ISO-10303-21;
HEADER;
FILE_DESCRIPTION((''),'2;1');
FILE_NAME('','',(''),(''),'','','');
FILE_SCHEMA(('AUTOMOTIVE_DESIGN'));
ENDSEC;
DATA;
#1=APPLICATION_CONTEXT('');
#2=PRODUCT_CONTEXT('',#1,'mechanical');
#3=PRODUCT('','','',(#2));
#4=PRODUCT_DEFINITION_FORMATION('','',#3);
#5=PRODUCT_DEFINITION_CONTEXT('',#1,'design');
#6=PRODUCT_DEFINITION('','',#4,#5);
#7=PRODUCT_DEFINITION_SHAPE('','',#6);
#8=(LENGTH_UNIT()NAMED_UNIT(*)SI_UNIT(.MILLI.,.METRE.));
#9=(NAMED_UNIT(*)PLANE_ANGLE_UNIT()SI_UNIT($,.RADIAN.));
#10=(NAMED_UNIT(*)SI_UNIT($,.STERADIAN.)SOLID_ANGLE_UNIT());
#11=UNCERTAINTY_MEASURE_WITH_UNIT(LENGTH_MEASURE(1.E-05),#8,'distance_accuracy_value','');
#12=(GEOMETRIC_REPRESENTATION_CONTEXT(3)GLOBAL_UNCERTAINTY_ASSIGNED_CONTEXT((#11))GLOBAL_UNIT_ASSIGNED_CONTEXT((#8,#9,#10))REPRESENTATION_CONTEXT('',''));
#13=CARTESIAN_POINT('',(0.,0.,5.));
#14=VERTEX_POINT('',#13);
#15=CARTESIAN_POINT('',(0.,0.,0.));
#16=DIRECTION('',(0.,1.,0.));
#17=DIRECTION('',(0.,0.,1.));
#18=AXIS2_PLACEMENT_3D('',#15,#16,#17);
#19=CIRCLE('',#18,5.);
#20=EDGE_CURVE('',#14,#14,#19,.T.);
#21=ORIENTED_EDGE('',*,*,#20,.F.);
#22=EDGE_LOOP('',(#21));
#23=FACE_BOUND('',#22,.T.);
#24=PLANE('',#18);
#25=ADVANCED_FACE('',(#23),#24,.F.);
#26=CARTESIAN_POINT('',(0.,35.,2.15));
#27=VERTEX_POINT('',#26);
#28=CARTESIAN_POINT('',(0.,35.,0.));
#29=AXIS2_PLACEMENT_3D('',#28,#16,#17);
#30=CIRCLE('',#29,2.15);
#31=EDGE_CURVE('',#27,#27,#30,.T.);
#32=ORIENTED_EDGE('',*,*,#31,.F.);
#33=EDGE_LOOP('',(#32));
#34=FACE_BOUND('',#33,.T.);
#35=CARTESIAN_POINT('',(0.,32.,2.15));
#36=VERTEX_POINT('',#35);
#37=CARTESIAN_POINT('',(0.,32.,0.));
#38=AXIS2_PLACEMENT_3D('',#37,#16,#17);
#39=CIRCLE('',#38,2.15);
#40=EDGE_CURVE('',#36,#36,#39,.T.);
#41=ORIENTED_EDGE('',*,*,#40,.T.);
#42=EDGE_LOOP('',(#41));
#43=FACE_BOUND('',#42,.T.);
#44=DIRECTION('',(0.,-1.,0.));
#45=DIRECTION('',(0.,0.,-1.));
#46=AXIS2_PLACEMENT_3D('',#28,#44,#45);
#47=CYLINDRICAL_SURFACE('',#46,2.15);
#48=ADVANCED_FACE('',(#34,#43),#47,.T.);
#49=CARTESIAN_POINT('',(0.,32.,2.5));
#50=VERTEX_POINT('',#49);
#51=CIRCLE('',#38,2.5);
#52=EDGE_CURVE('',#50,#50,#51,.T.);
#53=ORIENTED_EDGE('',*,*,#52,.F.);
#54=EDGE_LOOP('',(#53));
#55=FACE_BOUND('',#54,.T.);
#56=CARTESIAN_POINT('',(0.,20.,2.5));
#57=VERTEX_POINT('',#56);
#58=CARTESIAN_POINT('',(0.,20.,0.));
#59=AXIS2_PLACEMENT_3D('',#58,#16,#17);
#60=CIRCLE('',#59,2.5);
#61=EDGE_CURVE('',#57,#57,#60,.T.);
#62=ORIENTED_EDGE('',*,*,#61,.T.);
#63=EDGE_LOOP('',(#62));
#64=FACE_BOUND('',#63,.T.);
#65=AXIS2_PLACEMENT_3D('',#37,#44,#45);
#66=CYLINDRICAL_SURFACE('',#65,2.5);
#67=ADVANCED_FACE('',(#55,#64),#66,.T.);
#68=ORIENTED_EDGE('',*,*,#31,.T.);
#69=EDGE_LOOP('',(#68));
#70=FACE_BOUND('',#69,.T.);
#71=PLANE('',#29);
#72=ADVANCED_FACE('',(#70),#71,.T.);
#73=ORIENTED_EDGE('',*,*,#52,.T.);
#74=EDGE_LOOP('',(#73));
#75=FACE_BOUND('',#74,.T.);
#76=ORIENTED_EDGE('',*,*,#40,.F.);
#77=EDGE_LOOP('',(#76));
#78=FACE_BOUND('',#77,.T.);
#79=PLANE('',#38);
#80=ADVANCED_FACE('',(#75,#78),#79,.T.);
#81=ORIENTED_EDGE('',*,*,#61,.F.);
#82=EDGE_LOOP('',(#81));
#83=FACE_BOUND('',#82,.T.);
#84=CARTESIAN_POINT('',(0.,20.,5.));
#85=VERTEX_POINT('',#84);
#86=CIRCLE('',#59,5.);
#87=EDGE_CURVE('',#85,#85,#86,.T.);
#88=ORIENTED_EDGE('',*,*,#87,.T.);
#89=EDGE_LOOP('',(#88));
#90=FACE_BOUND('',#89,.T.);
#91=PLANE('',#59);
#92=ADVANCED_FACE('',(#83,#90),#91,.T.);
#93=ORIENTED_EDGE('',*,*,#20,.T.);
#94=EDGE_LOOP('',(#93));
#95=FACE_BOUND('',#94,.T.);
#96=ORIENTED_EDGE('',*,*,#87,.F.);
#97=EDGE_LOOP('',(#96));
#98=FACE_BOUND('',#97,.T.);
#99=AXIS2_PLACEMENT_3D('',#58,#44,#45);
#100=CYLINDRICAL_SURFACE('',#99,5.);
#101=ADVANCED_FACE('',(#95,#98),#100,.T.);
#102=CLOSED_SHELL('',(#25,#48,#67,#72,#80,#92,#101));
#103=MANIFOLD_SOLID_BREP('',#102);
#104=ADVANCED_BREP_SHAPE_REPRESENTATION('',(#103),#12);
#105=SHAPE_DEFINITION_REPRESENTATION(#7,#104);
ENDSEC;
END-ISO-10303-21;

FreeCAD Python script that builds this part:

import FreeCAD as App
import Part
import Sketcher

doc = App.newDocument("Part")
body = doc.addObject("PartDesign::Body", "Body")

# Sketch on XZ plane
sketch1 = body.newObject("Sketcher::SketchObject", "Sketch")
sketch1.AttachmentSupport = (doc.getObject("XZ_Plane"), [""])
sketch1.MapMode = "FlatFace"
sketch1.addGeometry(Part.Circle(App.Vector(0, 0, 0), App.Vector(0, 0, 1), 5), False)
sketch1.addConstraint(Sketcher.Constraint("Coincident", 0, 3, -1, 1))
sketch1.addConstraint(Sketcher.Constraint("Diameter", 0, 10.0))
pad1 = body.newObject("PartDesign::Pad", "Pad")
pad1.Profile = sketch1
pad1.Length = 20
pad1.Reversed = True

# Sketch on XZ plane
sketch2 = body.newObject("Sketcher::SketchObject", "Sketch001")
sketch2.AttachmentSupport = (doc.getObject("XZ_Plane"), [""])
sketch2.MapMode = "FlatFace"
sketch2.AttachmentOffset = App.Placement(App.Vector(0, 0, -20), App.Rotation())
sketch2.addGeometry(Part.Circle(App.Vector(0, 0, 0), App.Vector(0, 0, 1), 2.5), False)
sketch2.addConstraint(Sketcher.Constraint("Coincident", 0, 3, -1, 1))
sketch2.addConstraint(Sketcher.Constraint("Diameter", 0, 5.0))
pad2 = body.newObject("PartDesign::Pad", "Pad001")
pad2.Profile = sketch2
pad2.Length = 12
pad2.Reversed = True

# Sketch on XZ plane
sketch3 = body.newObject("Sketcher::SketchObject", "Sketch002")
sketch3.AttachmentSupport = (doc.getObject("XZ_Plane"), [""])
sketch3.MapMode = "FlatFace"
sketch3.AttachmentOffset = App.Placement(App.Vector(0, 0, -32), App.Rotation())
sketch3.addGeometry(Part.Circle(App.Vector(0, 0, 0), App.Vector(0, 0, 1), 2.1), False)
sketch3.addConstraint(Sketcher.Constraint("Coincident", 0, 3, -1, 1))
sketch3.addConstraint(Sketcher.Constraint("Diameter", 0, 4.3))
pad3 = body.newObject("PartDesign::Pad", "Pad002")
pad3.Profile = sketch3
pad3.Length = 3
pad3.Reversed = True

doc.recompute()
